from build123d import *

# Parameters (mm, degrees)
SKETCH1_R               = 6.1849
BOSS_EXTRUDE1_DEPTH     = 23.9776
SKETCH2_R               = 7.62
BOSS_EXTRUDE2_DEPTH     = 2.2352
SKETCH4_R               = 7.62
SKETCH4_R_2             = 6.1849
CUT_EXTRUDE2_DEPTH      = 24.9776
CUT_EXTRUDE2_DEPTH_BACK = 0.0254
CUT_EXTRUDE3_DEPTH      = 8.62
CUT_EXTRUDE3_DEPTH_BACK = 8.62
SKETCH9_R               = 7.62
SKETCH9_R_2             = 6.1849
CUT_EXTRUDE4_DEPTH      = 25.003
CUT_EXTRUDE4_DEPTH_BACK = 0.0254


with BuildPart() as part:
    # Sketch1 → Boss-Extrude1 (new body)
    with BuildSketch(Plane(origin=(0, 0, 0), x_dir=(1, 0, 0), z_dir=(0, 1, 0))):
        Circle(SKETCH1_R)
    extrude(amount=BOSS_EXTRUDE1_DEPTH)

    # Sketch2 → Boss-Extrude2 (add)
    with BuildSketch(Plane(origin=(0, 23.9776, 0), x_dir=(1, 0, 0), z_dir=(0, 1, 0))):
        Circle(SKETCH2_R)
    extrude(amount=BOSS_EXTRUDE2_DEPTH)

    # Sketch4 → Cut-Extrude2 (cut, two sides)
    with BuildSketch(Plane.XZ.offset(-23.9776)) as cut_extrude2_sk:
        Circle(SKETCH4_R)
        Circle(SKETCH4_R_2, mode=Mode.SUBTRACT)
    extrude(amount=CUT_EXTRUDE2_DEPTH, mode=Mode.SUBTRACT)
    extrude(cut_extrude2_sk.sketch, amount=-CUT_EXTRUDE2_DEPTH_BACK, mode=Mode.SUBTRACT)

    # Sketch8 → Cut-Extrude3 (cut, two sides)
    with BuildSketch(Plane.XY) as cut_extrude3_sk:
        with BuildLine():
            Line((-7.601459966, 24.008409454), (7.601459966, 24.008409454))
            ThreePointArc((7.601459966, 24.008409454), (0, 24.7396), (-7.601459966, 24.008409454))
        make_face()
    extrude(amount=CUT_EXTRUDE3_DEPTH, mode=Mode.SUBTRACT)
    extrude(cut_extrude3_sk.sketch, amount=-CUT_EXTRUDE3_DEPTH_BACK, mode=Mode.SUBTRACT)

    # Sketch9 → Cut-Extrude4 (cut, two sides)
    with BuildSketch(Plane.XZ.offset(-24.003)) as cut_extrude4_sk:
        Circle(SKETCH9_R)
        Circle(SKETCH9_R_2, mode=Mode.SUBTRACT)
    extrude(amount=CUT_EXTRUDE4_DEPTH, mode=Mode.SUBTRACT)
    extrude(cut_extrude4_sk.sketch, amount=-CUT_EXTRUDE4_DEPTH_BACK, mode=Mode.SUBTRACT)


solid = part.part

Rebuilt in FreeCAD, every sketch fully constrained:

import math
import FreeCAD as App
import Part
import Sketcher

V = App.Vector
Q = App.Units.Quantity

doc = App.newDocument("Part")
body = doc.addObject("PartDesign::Body", "Body")
body.AllowCompound = True

# Sketch on XZ plane
sketch1 = doc.addObject("Sketcher::SketchObject", "Sketch")
body.addObject(sketch1)
sketch1.AttachmentSupport = (doc.XZ_Plane, [""])
sketch1.MapMode = "FlatFace"
sketch1.addGeometry(Part.Circle(V(0, 0, 0), V(0, 0, 1), 6), False)
sketch1.addConstraint([
    Sketcher.Constraint("Coincident", 0, 3, -1, 1),
    Sketcher.Constraint("Diameter", 0, Q("0.487 in")),
])
pad1 = doc.addObject("PartDesign::Pad", "Pad")
body.addObject(pad1)
pad1.Profile = sketch1
pad1.Length = Q("0.944 in")
pad1.Reversed = True

# Sketch on XZ plane
sketch2 = doc.addObject("Sketcher::SketchObject", "Sketch001")
body.addObject(sketch2)
sketch2.AttachmentSupport = (doc.XZ_Plane, [""])
sketch2.MapMode = "FlatFace"
sketch2.AttachmentOffset = App.Placement(V(0, 0, -0.944 * 25.4), App.Rotation())
sketch2.addGeometry(Part.Circle(V(0, 0, 0), V(0, 0, 1), 8), False)
sketch2.addConstraint([
    Sketcher.Constraint("Coincident", 0, 3, -1, 1),
    Sketcher.Constraint("Diameter", 0, Q("0.6 in")),
])
pad2 = doc.addObject("PartDesign::Pad", "Pad001")
body.addObject(pad2)
pad2.Profile = sketch2
pad2.Length = Q("0.088 in")
pad2.Reversed = True

# Sketch on XZ plane
sketch3 = doc.addObject("Sketcher::SketchObject", "Sketch002")
body.addObject(sketch3)
sketch3.AttachmentSupport = (doc.XZ_Plane, [""])
sketch3.MapMode = "FlatFace"
sketch3.AttachmentOffset = App.Placement(V(0, 0, -0.944 * 25.4), App.Rotation())
sketch3.addGeometry([
    Part.Circle(V(0, 0, 0), V(0, 0, 1), 8),
    Part.Circle(V(0, 0, 0), V(0, 0, 1), 6),
], False)
sketch3.addConstraint([
    Sketcher.Constraint("Coincident", 0, 3, -1, 1),
    Sketcher.Constraint("Coincident", 1, 3, -1, 1),
    Sketcher.Constraint("Diameter", 0, Q("0.6 in")),
    Sketcher.Constraint("Diameter", 1, Q("0.487 in")),
])
pocket1 = doc.addObject("PartDesign::Pocket", "Pocket")
body.addObject(pocket1)
pocket1.Profile = sketch3
pocket1.Type = "TwoLengths"
pocket1.Length = 24.9776
pocket1.Length2 = Q("0.001 in")
pocket1.Reversed = True

# Sketch on XY plane
sketch4 = doc.addObject("Sketcher::SketchObject", "Sketch003")
body.addObject(sketch4)
sketch4.AttachmentSupport = (doc.XY_Plane, [""])
sketch4.MapMode = "FlatFace"
sketch4.addGeometry([
    Part.LineSegment(V(-8, 24, 0), V(8, 24, 0)),
    Part.ArcOfCircle(Part.Circle(V(0, -15, 0), V(0, 0, 1), 40), math.radians(79), math.radians(101)),
], False)
sketch4.addConstraint([
    Sketcher.Constraint("Coincident", 0, 1, 1, 2),
    Sketcher.Constraint("Coincident", 1, 1, 0, 2),
    Sketcher.Constraint("Horizontal", 0),
    Sketcher.Constraint("PointOnObject", 1, 3, -2),
    Sketcher.Constraint("Radius", 1, Q("1.57 in")),
    Sketcher.Constraint("DistanceY", 1, 3, -1, 1, Q("0.596 in")),
    Sketcher.Constraint("DistanceX", 0, 1, 0, 2, Q("15.20292 mm")),
])
pocket2 = doc.addObject("PartDesign::Pocket", "Pocket001")
body.addObject(pocket2)
pocket2.Profile = sketch4
pocket2.Type = "ThroughAll"
pocket2.Midplane = True

# Sketch on XZ plane
sketch5 = doc.addObject("Sketcher::SketchObject", "Sketch004")
body.addObject(sketch5)
sketch5.AttachmentSupport = (doc.XZ_Plane, [""])
sketch5.MapMode = "FlatFace"
sketch5.AttachmentOffset = App.Placement(V(0, 0, -0.945 * 25.4), App.Rotation())
sketch5.addGeometry([
    Part.Circle(V(0, 0, 0), V(0, 0, 1), 8),
    Part.Circle(V(0, 0, 0), V(0, 0, 1), 6),
], False)
sketch5.addConstraint([
    Sketcher.Constraint("Coincident", 0, 3, -1, 1),
    Sketcher.Constraint("Coincident", 1, 3, -1, 1),
    Sketcher.Constraint("Diameter", 0, Q("0.6 in")),
    Sketcher.Constraint("Diameter", 1, Q("0.487 in")),
])
pocket3 = doc.addObject("PartDesign::Pocket", "Pocket002")
body.addObject(pocket3)
pocket3.Profile = sketch5
pocket3.Type = "TwoLengths"
pocket3.Length = 25.003
pocket3.Length2 = Q("0.001 in")
pocket3.Reversed = True

doc.recompute()
